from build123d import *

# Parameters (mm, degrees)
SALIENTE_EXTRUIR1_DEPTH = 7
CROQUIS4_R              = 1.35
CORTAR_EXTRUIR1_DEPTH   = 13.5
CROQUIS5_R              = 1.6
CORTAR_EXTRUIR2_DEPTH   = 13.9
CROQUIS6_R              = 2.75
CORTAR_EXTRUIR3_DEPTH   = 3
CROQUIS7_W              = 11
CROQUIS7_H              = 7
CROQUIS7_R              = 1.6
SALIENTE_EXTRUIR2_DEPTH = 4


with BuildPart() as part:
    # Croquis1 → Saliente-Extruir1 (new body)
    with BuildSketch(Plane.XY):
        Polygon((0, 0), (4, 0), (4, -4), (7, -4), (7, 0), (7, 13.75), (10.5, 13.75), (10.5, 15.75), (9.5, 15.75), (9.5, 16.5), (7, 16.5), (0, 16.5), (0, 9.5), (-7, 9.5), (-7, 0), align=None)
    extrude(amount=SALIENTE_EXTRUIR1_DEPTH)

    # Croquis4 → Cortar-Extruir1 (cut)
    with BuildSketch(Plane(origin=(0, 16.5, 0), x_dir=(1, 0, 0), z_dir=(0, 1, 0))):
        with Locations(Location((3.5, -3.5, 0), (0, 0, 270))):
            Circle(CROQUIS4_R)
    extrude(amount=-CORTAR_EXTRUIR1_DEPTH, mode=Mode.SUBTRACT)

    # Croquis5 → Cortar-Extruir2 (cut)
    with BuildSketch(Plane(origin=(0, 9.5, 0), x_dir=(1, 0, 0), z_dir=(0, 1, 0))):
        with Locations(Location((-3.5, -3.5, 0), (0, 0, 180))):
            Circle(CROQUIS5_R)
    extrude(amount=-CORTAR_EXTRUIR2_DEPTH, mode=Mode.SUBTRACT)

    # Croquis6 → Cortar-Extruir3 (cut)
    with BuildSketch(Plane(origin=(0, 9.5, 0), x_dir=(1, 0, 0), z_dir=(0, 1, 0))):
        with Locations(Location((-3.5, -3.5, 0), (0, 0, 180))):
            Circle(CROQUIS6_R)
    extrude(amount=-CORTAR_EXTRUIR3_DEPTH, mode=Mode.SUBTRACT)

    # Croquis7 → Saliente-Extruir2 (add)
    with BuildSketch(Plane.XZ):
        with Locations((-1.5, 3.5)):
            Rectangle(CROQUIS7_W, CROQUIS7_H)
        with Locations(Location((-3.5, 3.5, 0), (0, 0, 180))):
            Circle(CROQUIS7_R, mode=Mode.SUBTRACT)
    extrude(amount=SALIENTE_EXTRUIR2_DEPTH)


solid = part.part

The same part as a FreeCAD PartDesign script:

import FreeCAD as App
import Part
import Sketcher
from FreeCAD import Vector
Q = App.Units.Quantity

doc = App.newDocument("Part")
params = doc.addObject("Spreadsheet::Sheet", "Params")
for row, (alias, value) in enumerate([
    ("sketch1_width", "3 mm"),
    ("sketch1_width2", "1 mm"),
    ("sketch1_width3", "7 mm"),
    ("sketch1_width4", "11 mm"),
    ("sketch1_height", "4 mm"),
    ("pad1_length", "7 mm"),
    ("sketch2_diameter", "2.7 mm"),
    ("pocket1_length", "13.5 mm"),
    ("sketch3_diameter", "3.2 mm"),
    ("pocket2_length", "13.9 mm"),
    ("sketch4_diameter", "5.5 mm"),
    ("pocket3_length", "3 mm"),
    ("sketch5_diameter", "3.2 mm"),
    ("sketch5_width", "11 mm"),
    ("sketch5_height", "7 mm"),
    ("pad2_length", "4 mm"),
], start=1):
    params.set(f"A{row}", alias)
    params.set(f"B{row}", "=" + value)
    params.setAlias(f"B{row}", alias)

body = doc.addObject("PartDesign::Body", "Body")

sketch1 = body.newObject("Sketcher::SketchObject", "Sketch")
sketch1.AttachmentSupport = (doc.getObject("XY_Plane"), [""])
sketch1.MapMode = "FlatFace"
sketch1.addGeometry(Part.LineSegment(Vector(4, 0, 0), Vector(4, -4, 0)), False)
sketch1.addGeometry(Part.LineSegment(Vector(4, -4, 0), Vector(7, -4, 0)), False)
sketch1.addGeometry(Part.LineSegment(Vector(7, -4, 0), Vector(7, 13.75, 0)), False)
sketch1.addGeometry(Part.LineSegment(Vector(7, 13.75, 0), Vector(10.5, 13.75, 0)), False)
sketch1.addGeometry(Part.LineSegment(Vector(10.5, 13.75, 0), Vector(10.5, 15.75, 0)), False)
sketch1.addGeometry(Part.LineSegment(Vector(10.5, 15.75, 0), Vector(9.5, 15.75, 0)), False)
sketch1.addGeometry(Part.LineSegment(Vector(9.5, 15.75, 0), Vector(9.5, 16.5, 0)), False)
sketch1.addGeometry(Part.LineSegment(Vector(9.5, 16.5, 0), Vector(0, 16.5, 0)), False)
sketch1.addGeometry(Part.LineSegment(Vector(0, 16.5, 0), Vector(0, 9.5, 0)), False)
sketch1.addGeometry(Part.LineSegment(Vector(0, 9.5, 0), Vector(-7, 9.5, 0)), False)
sketch1.addGeometry(Part.LineSegment(Vector(-7, 9.5, 0), Vector(-7, 0, 0)), False)
sketch1.addGeometry(Part.LineSegment(Vector(-7, 0, 0), Vector(4, 0, 0)), False)
sketch1.addConstraint(Sketcher.Constraint("Coincident", 0, 2, 1, 1))
sketch1.addConstraint(Sketcher.Constraint("Coincident", 1, 2, 2, 1))
sketch1.addConstraint(Sketcher.Constraint("Coincident", 2, 2, 3, 1))
sketch1.addConstraint(Sketcher.Constraint("Coincident", 3, 2, 4, 1))
sketch1.addConstraint(Sketcher.Constraint("Coincident", 4, 2, 5, 1))
sketch1.addConstraint(Sketcher.Constraint("Coincident", 5, 2, 6, 1))
sketch1.addConstraint(Sketcher.Constraint("Coincident", 6, 2, 7, 1))
sketch1.addConstraint(Sketcher.Constraint("Coincident", 7, 2, 8, 1))
sketch1.addConstraint(Sketcher.Constraint("Coincident", 8, 2, 9, 1))
sketch1.addConstraint(Sketcher.Constraint("Coincident", 9, 2, 10, 1))
sketch1.addConstraint(Sketcher.Constraint("Coincident", 10, 2, 11, 1))
sketch1.addConstraint(Sketcher.Constraint("Coincident", 11, 2, 0, 1))
sketch1.addConstraint(Sketcher.Constraint("Vertical", 0))
sketch1.addConstraint(Sketcher.Constraint("Horizontal", 1))
sketch1.addConstraint(Sketcher.Constraint("Vertical", 2))
sketch1.addConstraint(Sketcher.Constraint("Horizontal", 3))
sketch1.addConstraint(Sketcher.Constraint("Vertical", 4))
sketch1.addConstraint(Sketcher.Constraint("Horizontal", 5))
sketch1.addConstraint(Sketcher.Constraint("Vertical", 6))
sketch1.addConstraint(Sketcher.Constraint("Horizontal", 7))
sketch1.addConstraint(Sketcher.Constraint("Vertical", 8))
sketch1.addConstraint(Sketcher.Constraint("Horizontal", 9))
sketch1.addConstraint(Sketcher.Constraint("Vertical", 10))
sketch1.addConstraint(Sketcher.Constraint("Horizontal", 11))
sketch1.addConstraint(Sketcher.Constraint("PointOnObject", 7, 2, -2))
sketch1.addConstraint(Sketcher.Constraint("PointOnObject", 10, 2, -1))
sketch1.addConstraint(Sketcher.Constraint("Equal", 9, 8))
sketch1.addConstraint(Sketcher.Constraint("Equal", 7, 10))
sketch1.addConstraint(Sketcher.Constraint("DistanceX", 1, 1, 1, 2, Q("3 mm")))
sketch1.addConstraint(Sketcher.Constraint("DistanceX", 5, 2, 5, 1, Q("1 mm")))
sketch1.addConstraint(Sketcher.Constraint("DistanceX", 9, 2, 9, 1, Q("7 mm")))
sketch1.addConstraint(Sketcher.Constraint("DistanceX", 11, 1, 11, 2, Q("11 mm")))
sketch1.addConstraint(Sketcher.Constraint("DistanceY", 0, 2, 0, 1, Q("4 mm")))
sketch1.addConstraint(Sketcher.Constraint("DistanceY", 4, 1, 4, 2, Q("2 mm")))
sketch1.addConstraint(Sketcher.Constraint("DistanceX", 3, 1, 3, 2, Q("3.5 mm")))
sketch1.addConstraint(Sketcher.Constraint("DistanceY", 2, 1, 2, 2, Q("17.75 mm")))
sketch1.setExpression("Constraints[28]", "Params.sketch1_width")
sketch1.setExpression("Constraints[29]", "Params.sketch1_width2")
sketch1.setExpression("Constraints[30]", "Params.sketch1_width3")
sketch1.setExpression("Constraints[31]", "Params.sketch1_width4")
sketch1.setExpression("Constraints[32]", "Params.sketch1_height")
pad1 = body.newObject("PartDesign::Pad", "Pad")
pad1.Profile = sketch1
pad1.setExpression("Length", "Params.pad1_length")

sketch2 = body.newObject("Sketcher::SketchObject", "Sketch001")
sketch2.AttachmentSupport = (doc.getObject("XZ_Plane"), [""])
sketch2.MapMode = "FlatFace"
sketch2.AttachmentOffset = App.Placement(Vector(0, 0, -16.5), App.Rotation())
sketch2.addGeometry(Part.Circle(Vector(3.5, 3.5, 0), Vector(0, 0, 1), 1.35), False)
sketch2.addConstraint(Sketcher.Constraint("Diameter", 0, Q("2.7 mm")))
sketch2.addConstraint(Sketcher.Constraint("DistanceX", -1, 1, 0, 3, Q("3.5 mm")))
sketch2.addConstraint(Sketcher.Constraint("DistanceY", -1, 1, 0, 3, Q("3.5 mm")))
sketch2.setExpression("Constraints[0]", "Params.sketch2_diameter")
pocket1 = body.newObject("PartDesign::Pocket", "Pocket")
pocket1.Profile = sketch2
pocket1.setExpression("Length", "Params.pocket1_length")
pocket1.Reversed = True

sketch3 = body.newObject("Sketcher::SketchObject", "Sketch002")
sketch3.AttachmentSupport = (doc.getObject("XZ_Plane"), [""])
sketch3.MapMode = "FlatFace"
sketch3.AttachmentOffset = App.Placement(Vector(0, 0, -9.5), App.Rotation())
sketch3.addGeometry(Part.Circle(Vector(-3.5, 3.5, 0), Vector(0, 0, 1), 1.6), False)
sketch3.addConstraint(Sketcher.Constraint("Diameter", 0, Q("3.2 mm")))
sketch3.addConstraint(Sketcher.Constraint("DistanceX", 0, 3, -1, 1, Q("3.5 mm")))
sketch3.addConstraint(Sketcher.Constraint("DistanceY", -1, 1, 0, 3, Q("3.5 mm")))
sketch3.setExpression("Constraints[0]", "Params.sketch3_diameter")
pocket2 = body.newObject("PartDesign::Pocket", "Pocket001")
pocket2.Profile = sketch3
pocket2.setExpression("Length", "Params.pocket2_length")
pocket2.Reversed = True

sketch4 = body.newObject("Sketcher::SketchObject", "Sketch003")
sketch4.AttachmentSupport = (doc.getObject("XZ_Plane"), [""])
sketch4.MapMode = "FlatFace"
sketch4.AttachmentOffset = App.Placement(Vector(0, 0, -9.5), App.Rotation())
sketch4.addGeometry(Part.Circle(Vector(-3.5, 3.5, 0), Vector(0, 0, 1), 2.75), False)
sketch4.addConstraint(Sketcher.Constraint("Diameter", 0, Q("5.5 mm")))
sketch4.addConstraint(Sketcher.Constraint("DistanceX", 0, 3, -1, 1, Q("3.5 mm")))
sketch4.addConstraint(Sketcher.Constraint("DistanceY", -1, 1, 0, 3, Q("3.5 mm")))
sketch4.setExpression("Constraints[0]", "Params.sketch4_diameter")
pocket3 = body.newObject("PartDesign::Pocket", "Pocket002")
pocket3.Profile = sketch4
pocket3.setExpression("Length", "Params.pocket3_length")
pocket3.Reversed = True

sketch5 = body.newObject("Sketcher::SketchObject", "Sketch004")
sketch5.AttachmentSupport = (doc.getObject("XZ_Plane"), [""])
sketch5.MapMode = "FlatFace"
sketch5.addGeometry(Part.LineSegment(Vector(-7, 7, 0), Vector(-7, 0, 0)), False)
sketch5.addGeometry(Part.LineSegment(Vector(-7, 0, 0), Vector(4, 0, 0)), False)
sketch5.addGeometry(Part.LineSegment(Vector(4, 0, 0), Vector(4, 7, 0)), False)
sketch5.addGeometry(Part.LineSegment(Vector(4, 7, 0), Vector(-7, 7, 0)), False)
sketch5.addGeometry(Part.Circle(Vector(-3.5, 3.5, 0), Vector(0, 0, 1), 1.6), False)
sketch5.addConstraint(Sketcher.Constraint("Coincident", 0, 2, 1, 1))
sketch5.addConstraint(Sketcher.Constraint("Coincident", 1, 2, 2, 1))
sketch5.addConstraint(Sketcher.Constraint("Coincident", 2, 2, 3, 1))
sketch5.addConstraint(Sketcher.Constraint("Coincident", 3, 2, 0, 1))
sketch5.addConstraint(Sketcher.Constraint("Vertical", 0))
sketch5.addConstraint(Sketcher.Constraint("Horizontal", 1))
sketch5.addConstraint(Sketcher.Constraint("Vertical", 2))
sketch5.addConstraint(Sketcher.Constraint("Horizontal", 3))
sketch5.addConstraint(Sketcher.Constraint("PointOnObject", 0, 2, -1))
sketch5.addConstraint(Sketcher.Constraint("Diameter", 4, Q("3.2 mm")))
sketch5.addConstraint(Sketcher.Constraint("DistanceX", 1, 1, 1, 2, Q("11 mm")))
sketch5.addConstraint(Sketcher.Constraint("DistanceY", 0, 2, 0, 1, Q("7 mm")))
sketch5.addConstraint(Sketcher.Constraint("DistanceX", 0, 2, -1, 1, Q("7 mm")))
sketch5.addConstraint(Sketcher.Constraint("DistanceX", 4, 3, -1, 1, Q("3.5 mm")))
sketch5.addConstraint(Sketcher.Constraint("DistanceY", -1, 1, 4, 3, Q("3.5 mm")))
sketch5.setExpression("Constraints[9]", "Params.sketch5_diameter")
sketch5.setExpression("Constraints[10]", "Params.sketch5_width")
sketch5.setExpression("Constraints[11]", "Params.sketch5_height")
pad2 = body.newObject("PartDesign::Pad", "Pad001")
pad2.Profile = sketch5
pad2.setExpression("Length", "Params.pad2_length")

doc.recompute()
